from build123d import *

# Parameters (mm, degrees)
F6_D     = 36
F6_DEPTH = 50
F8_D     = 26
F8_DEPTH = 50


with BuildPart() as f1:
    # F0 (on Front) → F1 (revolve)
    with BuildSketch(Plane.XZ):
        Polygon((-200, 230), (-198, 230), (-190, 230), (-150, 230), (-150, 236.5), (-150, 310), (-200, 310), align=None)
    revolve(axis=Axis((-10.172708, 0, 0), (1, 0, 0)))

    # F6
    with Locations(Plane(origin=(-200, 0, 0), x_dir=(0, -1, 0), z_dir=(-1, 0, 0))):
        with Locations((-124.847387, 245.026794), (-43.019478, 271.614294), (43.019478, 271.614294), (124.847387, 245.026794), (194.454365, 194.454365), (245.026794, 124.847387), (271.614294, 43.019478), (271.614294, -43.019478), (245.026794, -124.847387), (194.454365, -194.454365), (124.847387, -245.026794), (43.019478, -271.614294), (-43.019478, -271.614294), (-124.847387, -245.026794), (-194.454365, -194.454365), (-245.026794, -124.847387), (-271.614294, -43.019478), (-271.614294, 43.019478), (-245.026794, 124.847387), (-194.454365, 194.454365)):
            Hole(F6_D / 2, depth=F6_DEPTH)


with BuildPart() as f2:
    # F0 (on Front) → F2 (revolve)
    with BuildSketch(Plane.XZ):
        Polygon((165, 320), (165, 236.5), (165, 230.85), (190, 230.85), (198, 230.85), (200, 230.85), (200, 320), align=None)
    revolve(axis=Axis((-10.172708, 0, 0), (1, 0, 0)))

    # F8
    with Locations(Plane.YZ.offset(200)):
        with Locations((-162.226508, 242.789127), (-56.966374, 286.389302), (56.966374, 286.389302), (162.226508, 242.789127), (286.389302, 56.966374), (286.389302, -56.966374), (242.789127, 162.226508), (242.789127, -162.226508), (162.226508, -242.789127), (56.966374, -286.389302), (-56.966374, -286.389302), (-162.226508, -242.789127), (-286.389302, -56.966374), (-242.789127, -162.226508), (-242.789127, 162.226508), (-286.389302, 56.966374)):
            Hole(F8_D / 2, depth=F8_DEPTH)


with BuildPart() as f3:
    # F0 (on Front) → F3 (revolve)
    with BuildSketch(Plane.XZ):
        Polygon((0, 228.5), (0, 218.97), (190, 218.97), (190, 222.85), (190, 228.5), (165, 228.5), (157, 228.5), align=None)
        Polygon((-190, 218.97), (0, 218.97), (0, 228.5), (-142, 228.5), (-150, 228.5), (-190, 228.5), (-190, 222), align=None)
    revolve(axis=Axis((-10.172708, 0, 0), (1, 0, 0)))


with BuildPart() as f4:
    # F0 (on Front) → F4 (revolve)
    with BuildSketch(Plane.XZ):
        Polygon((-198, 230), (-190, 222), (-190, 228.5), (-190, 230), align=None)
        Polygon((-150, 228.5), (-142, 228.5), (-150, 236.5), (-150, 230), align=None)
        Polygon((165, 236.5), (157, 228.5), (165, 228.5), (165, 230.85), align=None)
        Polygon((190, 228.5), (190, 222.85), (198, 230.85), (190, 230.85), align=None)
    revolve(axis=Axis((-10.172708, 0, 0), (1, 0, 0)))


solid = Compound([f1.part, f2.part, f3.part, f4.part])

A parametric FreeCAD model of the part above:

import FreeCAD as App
import Part
import Sketcher
Q = App.Units.Quantity

doc = App.newDocument("Part")
params = doc.addObject("Spreadsheet::Sheet", "Params")
for row, (alias, value) in enumerate([
    ("sketch1_width", "50 mm"),
    ("sketch1_height", "80 mm"),
    ("revolution_angle", "360 deg"),
    ("sketch2_diameter", "36 mm"),
    ("hole_diameter", "36 mm"),
    ("hole_depth", "50 mm"),
    ("sketch3_width", "35 mm"),
    ("sketch3_height", "89.15 mm"),
    ("revolution2_angle", "360 deg"),
    ("sketch4_diameter", "26 mm"),
    ("hole2_diameter", "26 mm"),
    ("hole2_depth", "50 mm"),
    ("sketch5_width", "380 mm"),
    ("sketch5_height", "9.53 mm"),
    ("revolution3_angle", "360 deg"),
    ("sketch6_width", "8 mm"),
    ("revolution4_angle", "360 deg"),
], start=1):
    params.set(f"A{row}", alias)
    params.set(f"B{row}", "=" + value)
    params.setAlias(f"B{row}", alias)

body = doc.addObject("PartDesign::Body", "Body")

# Sketch on XZ plane
sketch1 = body.newObject("Sketcher::SketchObject", "Sketch")
sketch1.AttachmentSupport = (doc.getObject("XZ_Plane"), [""])
sketch1.MapMode = "FlatFace"
sketch1.addGeometry(Part.LineSegment(App.Vector(-200, 230, 0), App.Vector(-150, 230, 0)), False)
sketch1.addGeometry(Part.LineSegment(App.Vector(-150, 230, 0), App.Vector(-150, 310, 0)), False)
sketch1.addGeometry(Part.LineSegment(App.Vector(-150, 310, 0), App.Vector(-200, 310, 0)), False)
sketch1.addGeometry(Part.LineSegment(App.Vector(-200, 310, 0), App.Vector(-200, 230, 0)), False)
sketch1.addConstraint(Sketcher.Constraint("Coincident", 0, 2, 1, 1))
sketch1.addConstraint(Sketcher.Constraint("Coincident", 1, 2, 2, 1))
sketch1.addConstraint(Sketcher.Constraint("Coincident", 2, 2, 3, 1))
sketch1.addConstraint(Sketcher.Constraint("Coincident", 3, 2, 0, 1))
sketch1.addConstraint(Sketcher.Constraint("Horizontal", 0))
sketch1.addConstraint(Sketcher.Constraint("Vertical", 1))
sketch1.addConstraint(Sketcher.Constraint("Horizontal", 2))
sketch1.addConstraint(Sketcher.Constraint("Vertical", 3))
sketch1.addConstraint(Sketcher.Constraint("DistanceX", 0, 1, 0, 2, Q("50 mm")))
sketch1.addConstraint(Sketcher.Constraint("DistanceY", 1, 1, 1, 2, Q("80 mm")))
sketch1.addConstraint(Sketcher.Constraint("DistanceX", 0, 2, -1, 1, Q("150 mm")))
sketch1.addConstraint(Sketcher.Constraint("DistanceY", -1, 1, 0, 2, Q("230 mm")))
sketch1.setExpression("Constraints[8]", "Params.sketch1_width")
sketch1.setExpression("Constraints[9]", "Params.sketch1_height")
revolution = body.newObject("PartDesign::Revolution", "Revolution")
revolution.Profile = sketch1
revolution.ReferenceAxis = (sketch1, ["H_Axis"])
revolution.setExpression("Angle", "Params.revolution_angle")

# Sketch on YZ plane
sketch2 = body.newObject("Sketcher::SketchObject", "Sketch001")
sketch2.AttachmentSupport = (doc.getObject("YZ_Plane"), [""])
sketch2.MapMode = "FlatFace"
sketch2.AttachmentOffset = App.Placement(App.Vector(0, 0, -200), App.Rotation())
sketch2.addGeometry(Part.Circle(App.Vector(124.847387, 245.026794, 0), App.Vector(0, 0, 1), 18), False)
sketch2.addGeometry(Part.Circle(App.Vector(43.019478, 271.614294, 0), App.Vector(0, 0, 1), 18), False)
sketch2.addGeometry(Part.Circle(App.Vector(-43.019478, 271.614294, 0), App.Vector(0, 0, 1), 18), False)
sketch2.addGeometry(Part.Circle(App.Vector(-124.847387, 245.026794, 0), App.Vector(0, 0, 1), 18), False)
sketch2.addGeometry(Part.Circle(App.Vector(-194.454365, 194.454365, 0), App.Vector(0, 0, 1), 18), False)
sketch2.addGeometry(Part.Circle(App.Vector(-245.026794, 124.847387, 0), App.Vector(0, 0, 1), 18), False)
sketch2.addGeometry(Part.Circle(App.Vector(-271.614294, 43.019478, 0), App.Vector(0, 0, 1), 18), False)
sketch2.addGeometry(Part.Circle(App.Vector(-271.614294, -43.019478, 0), App.Vector(0, 0, 1), 18), False)
sketch2.addGeometry(Part.Circle(App.Vector(-245.026794, -124.847387, 0), App.Vector(0, 0, 1), 18), False)
sketch2.addGeometry(Part.Circle(App.Vector(-194.454365, -194.454365, 0), App.Vector(0, 0, 1), 18), False)
sketch2.addGeometry(Part.Circle(App.Vector(-124.847387, -245.026794, 0), App.Vector(0, 0, 1), 18), False)
sketch2.addGeometry(Part.Circle(App.Vector(-43.019478, -271.614294, 0), App.Vector(0, 0, 1), 18), False)
sketch2.addGeometry(Part.Circle(App.Vector(43.019478, -271.614294, 0), App.Vector(0, 0, 1), 18), False)
sketch2.addGeometry(Part.Circle(App.Vector(124.847387, -245.026794, 0), App.Vector(0, 0, 1), 18), False)
sketch2.addGeometry(Part.Circle(App.Vector(194.454365, -194.454365, 0), App.Vector(0, 0, 1), 18), False)
sketch2.addGeometry(Part.Circle(App.Vector(245.026794, -124.847387, 0), App.Vector(0, 0, 1), 18), False)
sketch2.addGeometry(Part.Circle(App.Vector(271.614294, -43.019478, 0), App.Vector(0, 0, 1), 18), False)
sketch2.addGeometry(Part.Circle(App.Vector(271.614294, 43.019478, 0), App.Vector(0, 0, 1), 18), False)
sketch2.addGeometry(Part.Circle(App.Vector(245.026794, 124.847387, 0), App.Vector(0, 0, 1), 18), False)
sketch2.addGeometry(Part.Circle(App.Vector(194.454365, 194.454365, 0), App.Vector(0, 0, 1), 18), False)
sketch2.addConstraint(Sketcher.Constraint("Equal", 0, 1))
sketch2.addConstraint(Sketcher.Constraint("Equal", 1, 2))
sketch2.addConstraint(Sketcher.Constraint("Equal", 2, 3))
sketch2.addConstraint(Sketcher.Constraint("Equal", 3, 4))
sketch2.addConstraint(Sketcher.Constraint("Equal", 4, 5))
sketch2.addConstraint(Sketcher.Constraint("Equal", 5, 6))
sketch2.addConstraint(Sketcher.Constraint("Equal", 6, 7))
sketch2.addConstraint(Sketcher.Constraint("Equal", 7, 8))
sketch2.addConstraint(Sketcher.Constraint("Equal", 8, 9))
sketch2.addConstraint(Sketcher.Constraint("Equal", 9, 10))
sketch2.addConstraint(Sketcher.Constraint("Equal", 10, 11))
sketch2.addConstraint(Sketcher.Constraint("Equal", 11, 12))
sketch2.addConstraint(Sketcher.Constraint("Equal", 12, 13))
sketch2.addConstraint(Sketcher.Constraint("Equal", 13, 14))
sketch2.addConstraint(Sketcher.Constraint("Equal", 14, 15))
sketch2.addConstraint(Sketcher.Constraint("Equal", 15, 16))
sketch2.addConstraint(Sketcher.Constraint("Equal", 16, 17))
sketch2.addConstraint(Sketcher.Constraint("Equal", 17, 18))
sketch2.addConstraint(Sketcher.Constraint("Equal", 18, 19))
sketch2.addConstraint(Sketcher.Constraint("Symmetric", 0, 3, 10, 3, -1, 1))
sketch2.addConstraint(Sketcher.Constraint("Symmetric", 1, 3, 11, 3, -1, 1))
sketch2.addConstraint(Sketcher.Constraint("Symmetric", 2, 3, 12, 3, -1, 1))
sketch2.addConstraint(Sketcher.Constraint("Symmetric", 3, 3, 13, 3, -1, 1))
sketch2.addConstraint(Sketcher.Constraint("Symmetric", 4, 3, 14, 3, -1, 1))
sketch2.addConstraint(Sketcher.Constraint("Symmetric", 5, 3, 15, 3, -1, 1))
sketch2.addConstraint(Sketcher.Constraint("Symmetric", 6, 3, 16, 3, -1, 1))
sketch2.addConstraint(Sketcher.Constraint("Symmetric", 7, 3, 17, 3, -1, 1))
sketch2.addConstraint(Sketcher.Constraint("Symmetric", 8, 3, 18, 3, -1, 1))
sketch2.addConstraint(Sketcher.Constraint("Symmetric", 9, 3, 19, 3, -1, 1))
sketch2.addConstraint(Sketcher.Constraint("Symmetric", 1, 3, 2, 3, -2))
sketch2.addConstraint(Sketcher.Constraint("Symmetric", 0, 3, 3, 3, -2))
sketch2.addConstraint(Sketcher.Constraint("Symmetric", 9, 3, 14, 3, -2))
sketch2.addConstraint(Sketcher.Constraint("Symmetric", 8, 3, 15, 3, -2))
sketch2.addConstraint(Sketcher.Constraint("Symmetric", 7, 3, 16, 3, -2))
sketch2.addConstraint(Sketcher.Constraint("Diameter", 0, Q("36 mm")))
sketch2.addConstraint(Sketcher.Constraint("DistanceY", 0, 3, 1, 3, Q("26.5875 mm")))
sketch2.addConstraint(Sketcher.Constraint("DistanceX", 6, 3, 5, 3, Q("26.5875 mm")))
sketch2.addConstraint(Sketcher.Constraint("DistanceX", 1, 3, 0, 3, Q("81.827909 mm")))
sketch2.addConstraint(Sketcher.Constraint("DistanceX", 4, 3, 3, 3, Q("69.606978 mm")))
sketch2.addConstraint(Sketcher.Constraint("DistanceY", 4, 3, 3, 3, Q("50.572429 mm")))
sketch2.addConstraint(Sketcher.Constraint("DistanceX", 4, 3, 0, 3, Q("319.301752 mm")))
sketch2.addConstraint(Sketcher.Constraint("DistanceX", 5, 3, 4, 3, Q("50.572429 mm")))
sketch2.addConstraint(Sketcher.Constraint("DistanceY", 5, 3, 4, 3, Q("69.606978 mm")))
sketch2.addConstraint(Sketcher.Constraint("DistanceY", 6, 3, 5, 3, Q("81.827909 mm")))
sketch2.addConstraint(Sketcher.Constraint("DistanceY", 7, 3, 3, 3, Q("288.046272 mm")))
sketch2.setExpression("Constraints[34]", "Params.sketch2_diameter")
doc.recompute()
hole = body.newObject("PartDesign::Hole", "Hole")
hole.Profile = sketch2
hole.ThreadType = "None"
hole.setExpression("Diameter", "Params.hole_diameter")
hole.DepthType = "Dimension"
hole.setExpression("Depth", "Params.hole_depth")
hole.DrillPoint = "Flat"
hole.Reversed = True
body2 = doc.addObject("PartDesign::Body", "Body001")

# Sketch on XZ plane
sketch3 = body2.newObject("Sketcher::SketchObject", "Sketch002")
sketch3.AttachmentSupport = (doc.getObject("XZ_Plane001"), [""])
sketch3.MapMode = "FlatFace"
sketch3.addGeometry(Part.LineSegment(App.Vector(165, 320, 0), App.Vector(165, 230.85, 0)), False)
sketch3.addGeometry(Part.LineSegment(App.Vector(165, 230.85, 0), App.Vector(200, 230.85, 0)), False)
sketch3.addGeometry(Part.LineSegment(App.Vector(200, 230.85, 0), App.Vector(200, 320, 0)), False)
sketch3.addGeometry(Part.LineSegment(App.Vector(200, 320, 0), App.Vector(165, 320, 0)), False)
sketch3.addConstraint(Sketcher.Constraint("Coincident", 0, 2, 1, 1))
sketch3.addConstraint(Sketcher.Constraint("Coincident", 1, 2, 2, 1))
sketch3.addConstraint(Sketcher.Constraint("Coincident", 2, 2, 3, 1))
sketch3.addConstraint(Sketcher.Constraint("Coincident", 3, 2, 0, 1))
sketch3.addConstraint(Sketcher.Constraint("Vertical", 0))
sketch3.addConstraint(Sketcher.Constraint("Horizontal", 1))
sketch3.addConstraint(Sketcher.Constraint("Vertical", 2))
sketch3.addConstraint(Sketcher.Constraint("Horizontal", 3))
sketch3.addConstraint(Sketcher.Constraint("DistanceX", 1, 1, 1, 2, Q("35 mm")))
sketch3.addConstraint(Sketcher.Constraint("DistanceX", -1, 1, 0, 2, Q("165 mm")))
sketch3.addConstraint(Sketcher.Constraint("DistanceY", -1, 1, 2, 2, Q("320 mm")))
sketch3.addConstraint(Sketcher.Constraint("DistanceY", 0, 2, 0, 1, Q("89.15 mm")))
sketch3.setExpression("Constraints[8]", "Params.sketch3_width")
sketch3.setExpression("Constraints[11]", "Params.sketch3_height")
revolution2 = body2.newObject("PartDesign::Revolution", "Revolution001")
revolution2.Profile = sketch3
revolution2.ReferenceAxis = (sketch3, ["H_Axis"])
revolution2.setExpression("Angle", "Params.revolution2_angle")

# Sketch on YZ plane
sketch4 = body2.newObject("Sketcher::SketchObject", "Sketch003")
sketch4.AttachmentSupport = (doc.getObject("YZ_Plane001"), [""])
sketch4.MapMode = "FlatFace"
sketch4.AttachmentOffset = App.Placement(App.Vector(0, 0, 200), App.Rotation())
sketch4.addGeometry(Part.Circle(App.Vector(-162.226508, 242.789127, 0), App.Vector(0, 0, 1), 13), False)
sketch4.addGeometry(Part.Circle(App.Vector(-56.966374, 286.389302, 0), App.Vector(0, 0, 1), 13), False)
sketch4.addGeometry(Part.Circle(App.Vector(56.966374, 286.389302, 0), App.Vector(0, 0, 1), 13), False)
sketch4.addGeometry(Part.Circle(App.Vector(162.226508, 242.789127, 0), App.Vector(0, 0, 1), 13), False)
sketch4.addGeometry(Part.Circle(App.Vector(286.389302, 56.966374, 0), App.Vector(0, 0, 1), 13), False)
sketch4.addGeometry(Part.Circle(App.Vector(286.389302, -56.966374, 0), App.Vector(0, 0, 1), 13), False)
sketch4.addGeometry(Part.Circle(App.Vector(242.789127, 162.226508, 0), App.Vector(0, 0, 1), 13), False)
sketch4.addGeometry(Part.Circle(App.Vector(242.789127, -162.226508, 0), App.Vector(0, 0, 1), 13), False)
sketch4.addGeometry(Part.Circle(App.Vector(162.226508, -242.789127, 0), App.Vector(0, 0, 1), 13), False)
sketch4.addGeometry(Part.Circle(App.Vector(56.966374, -286.389302, 0), App.Vector(0, 0, 1), 13), False)
sketch4.addGeometry(Part.Circle(App.Vector(-56.966374, -286.389302, 0), App.Vector(0, 0, 1), 13), False)
sketch4.addGeometry(Part.Circle(App.Vector(-162.226508, -242.789127, 0), App.Vector(0, 0, 1), 13), False)
sketch4.addGeometry(Part.Circle(App.Vector(-286.389302, -56.966374, 0), App.Vector(0, 0, 1), 13), False)
sketch4.addGeometry(Part.Circle(App.Vector(-242.789127, -162.226508, 0), App.Vector(0, 0, 1), 13), False)
sketch4.addGeometry(Part.Circle(App.Vector(-242.789127, 162.226508, 0), App.Vector(0, 0, 1), 13), False)
sketch4.addGeometry(Part.Circle(App.Vector(-286.389302, 56.966374, 0), App.Vector(0, 0, 1), 13), False)
sketch4.addConstraint(Sketcher.Constraint("Equal", 0, 1))
sketch4.addConstraint(Sketcher.Constraint("Equal", 1, 2))
sketch4.addConstraint(Sketcher.Constraint("Equal", 2, 3))
sketch4.addConstraint(Sketcher.Constraint("Equal", 3, 4))
sketch4.addConstraint(Sketcher.Constraint("Equal", 4, 5))
sketch4.addConstraint(Sketcher.Constraint("Equal", 5, 6))
sketch4.addConstraint(Sketcher.Constraint("Equal", 6, 7))
sketch4.addConstraint(Sketcher.Constraint("Equal", 7, 8))
sketch4.addConstraint(Sketcher.Constraint("Equal", 8, 9))
sketch4.addConstraint(Sketcher.Constraint("Equal", 9, 10))
sketch4.addConstraint(Sketcher.Constraint("Equal", 10, 11))
sketch4.addConstraint(Sketcher.Constraint("Equal", 11, 12))
sketch4.addConstraint(Sketcher.Constraint("Equal", 12, 13))
sketch4.addConstraint(Sketcher.Constraint("Equal", 13, 14))
sketch4.addConstraint(Sketcher.Constraint("Equal", 14, 15))
sketch4.addConstraint(Sketcher.Constraint("Symmetric", 0, 3, 8, 3, -1, 1))
sketch4.addConstraint(Sketcher.Constraint("Symmetric", 1, 3, 9, 3, -1, 1))
sketch4.addConstraint(Sketcher.Constraint("Symmetric", 2, 3, 10, 3, -1, 1))
sketch4.addConstraint(Sketcher.Constraint("Symmetric", 3, 3, 11, 3, -1, 1))
sketch4.addConstraint(Sketcher.Constraint("Symmetric", 4, 3, 12, 3, -1, 1))
sketch4.addConstraint(Sketcher.Constraint("Symmetric", 6, 3, 13, 3, -1, 1))
sketch4.addConstraint(Sketcher.Constraint("Symmetric", 7, 3, 14, 3, -1, 1))
sketch4.addConstraint(Sketcher.Constraint("Symmetric", 5, 3, 15, 3, -1, 1))
sketch4.addConstraint(Sketcher.Constraint("Symmetric", 1, 3, 2, 3, -2))
sketch4.addConstraint(Sketcher.Constraint("Symmetric", 0, 3, 3, 3, -2))
sketch4.addConstraint(Sketcher.Constraint("Symmetric", 5, 3, 12, 3, -2))
sketch4.addConstraint(Sketcher.Constraint("Symmetric", 7, 3, 13, 3, -2))
sketch4.addConstraint(Sketcher.Constraint("Diameter", 0, Q("26 mm")))
sketch4.addConstraint(Sketcher.Constraint("DistanceY", -1, 1, 1, 3, Q("286.389302 mm")))
sketch4.addConstraint(Sketcher.Constraint("DistanceX", -1, 1, 4, 3, Q("286.389302 mm")))
sketch4.addConstraint(Sketcher.Constraint("DistanceY", 5, 3, 3, 3, Q("299.755501 mm")))
sketch4.addConstraint(Sketcher.Constraint("DistanceX", 1, 3, 6, 3, Q("299.755501 mm")))
sketch4.addConstraint(Sketcher.Constraint("DistanceX", 0, 3, -1, 1, Q("162.226508 mm")))
sketch4.addConstraint(Sketcher.Constraint("DistanceY", -1, 1, 6, 3, Q("162.226508 mm")))
sketch4.addConstraint(Sketcher.Constraint("DistanceX", 1, 3, 2, 3, Q("113.932748 mm")))
sketch4.addConstraint(Sketcher.Constraint("DistanceY", 5, 3, 4, 3, Q("113.932748 mm")))
sketch4.setExpression("Constraints[27]", "Params.sketch4_diameter")
doc.recompute()
hole2 = body2.newObject("PartDesign::Hole", "Hole001")
hole2.Profile = sketch4
hole2.ThreadType = "None"
hole2.setExpression("Diameter", "Params.hole2_diameter")
hole2.DepthType = "Dimension"
hole2.setExpression("Depth", "Params.hole2_depth")
hole2.DrillPoint = "Flat"
body3 = doc.addObject("PartDesign::Body", "Body002")

# Sketch on XZ plane
sketch5 = body3.newObject("Sketcher::SketchObject", "Sketch004")
sketch5.AttachmentSupport = (doc.getObject("XZ_Plane002"), [""])
sketch5.MapMode = "FlatFace"
sketch5.addGeometry(Part.LineSegment(App.Vector(190, 218.97, 0), App.Vector(190, 228.5, 0)), False)
sketch5.addGeometry(Part.LineSegment(App.Vector(190, 228.5, 0), App.Vector(-190, 228.5, 0)), False)
sketch5.addGeometry(Part.LineSegment(App.Vector(-190, 228.5, 0), App.Vector(-190, 218.97, 0)), False)
sketch5.addGeometry(Part.LineSegment(App.Vector(-190, 218.97, 0), App.Vector(190, 218.97, 0)), False)
sketch5.addConstraint(Sketcher.Constraint("Coincident", 0, 2, 1, 1))
sketch5.addConstraint(Sketcher.Constraint("Coincident", 1, 2, 2, 1))
sketch5.addConstraint(Sketcher.Constraint("Coincident", 2, 2, 3, 1))
sketch5.addConstraint(Sketcher.Constraint("Coincident", 3, 2, 0, 1))
sketch5.addConstraint(Sketcher.Constraint("Vertical", 0))
sketch5.addConstraint(Sketcher.Constraint("Horizontal", 1))
sketch5.addConstraint(Sketcher.Constraint("Vertical", 2))
sketch5.addConstraint(Sketcher.Constraint("Horizontal", 3))
sketch5.addConstraint(Sketcher.Constraint("DistanceX", 1, 2, 1, 1, Q("380 mm")))
sketch5.addConstraint(Sketcher.Constraint("DistanceX", -1, 1, 0, 2, Q("190 mm")))
sketch5.addConstraint(Sketcher.Constraint("DistanceY", 0, 1, 0, 2, Q("9.53 mm")))
sketch5.addConstraint(Sketcher.Constraint("DistanceY", -1, 1, 0, 2, Q("228.5 mm")))
sketch5.setExpression("Constraints[8]", "Params.sketch5_width")
sketch5.setExpression("Constraints[10]", "Params.sketch5_height")
revolution3 = body3.newObject("PartDesign::Revolution", "Revolution002")
revolution3.Profile = sketch5
revolution3.ReferenceAxis = (sketch5, ["H_Axis"])
revolution3.setExpression("Angle", "Params.revolution3_angle")
body4 = doc.addObject("PartDesign::Body", "Body003")
body4.AllowCompound = True

# Sketch on XZ plane
sketch6 = body4.newObject("Sketcher::SketchObject", "Sketch005")
sketch6.AttachmentSupport = (doc.getObject("XZ_Plane003"), [""])
sketch6.MapMode = "FlatFace"
sketch6.addGeometry(Part.LineSegment(App.Vector(-198, 230, 0), App.Vector(-190, 222, 0)), False)
sketch6.addGeometry(Part.LineSegment(App.Vector(-190, 222, 0), App.Vector(-190, 230, 0)), False)
sketch6.addGeometry(Part.LineSegment(App.Vector(-190, 230, 0), App.Vector(-198, 230, 0)), False)
sketch6.addGeometry(Part.LineSegment(App.Vector(-150, 228.5, 0), App.Vector(-142, 228.5, 0)), False)
sketch6.addGeometry(Part.LineSegment(App.Vector(-142, 228.5, 0), App.Vector(-150, 236.5, 0)), False)
sketch6.addGeometry(Part.LineSegment(App.Vector(-150, 236.5, 0), App.Vector(-150, 228.5, 0)), False)
sketch6.addGeometry(Part.LineSegment(App.Vector(165, 236.5, 0), App.Vector(157, 228.5, 0)), False)
sketch6.addGeometry(Part.LineSegment(App.Vector(157, 228.5, 0), App.Vector(165, 228.5, 0)), False)
sketch6.addGeometry(Part.LineSegment(App.Vector(165, 228.5, 0), App.Vector(165, 236.5, 0)), False)
sketch6.addGeometry(Part.LineSegment(App.Vector(190, 222.85, 0), App.Vector(198, 230.85, 0)), False)
sketch6.addGeometry(Part.LineSegment(App.Vector(198, 230.85, 0), App.Vector(190, 230.85, 0)), False)
sketch6.addGeometry(Part.LineSegment(App.Vector(190, 230.85, 0), App.Vector(190, 222.85, 0)), False)
sketch6.addConstraint(Sketcher.Constraint("Coincident", 0, 2, 1, 1))
sketch6.addConstraint(Sketcher.Constraint("Coincident", 1, 2, 2, 1))
sketch6.addConstraint(Sketcher.Constraint("Coincident", 2, 2, 0, 1))
sketch6.addConstraint(Sketcher.Constraint("Coincident", 3, 2, 4, 1))
sketch6.addConstraint(Sketcher.Constraint("Coincident", 4, 2, 5, 1))
sketch6.addConstraint(Sketcher.Constraint("Coincident", 5, 2, 3, 1))
sketch6.addConstraint(Sketcher.Constraint("Coincident", 6, 2, 7, 1))
sketch6.addConstraint(Sketcher.Constraint("Coincident", 7, 2, 8, 1))
sketch6.addConstraint(Sketcher.Constraint("Coincident", 8, 2, 6, 1))
sketch6.addConstraint(Sketcher.Constraint("Coincident", 9, 2, 10, 1))
sketch6.addConstraint(Sketcher.Constraint("Coincident", 10, 2, 11, 1))
sketch6.addConstraint(Sketcher.Constraint("Coincident", 11, 2, 9, 1))
sketch6.addConstraint(Sketcher.Constraint("Vertical", 1))
sketch6.addConstraint(Sketcher.Constraint("Horizontal", 2))
sketch6.addConstraint(Sketcher.Constraint("Horizontal", 3))
sketch6.addConstraint(Sketcher.Constraint("Vertical", 5))
sketch6.addConstraint(Sketcher.Constraint("Horizontal", 7))
sketch6.addConstraint(Sketcher.Constraint("Vertical", 8))
sketch6.addConstraint(Sketcher.Constraint("Horizontal", 10))
sketch6.addConstraint(Sketcher.Constraint("Vertical", 11))
sketch6.addConstraint(Sketcher.Constraint("Parallel", 0, 4))
sketch6.addConstraint(Sketcher.Constraint("Perpendicular", 4, 6))
sketch6.addConstraint(Sketcher.Constraint("Parallel", 6, 9))
sketch6.addConstraint(Sketcher.Constraint("Horizontal", 5, 2, 6, 2))
sketch6.addConstraint(Sketcher.Constraint("Horizontal", 4, 2, 8, 2))
sketch6.addConstraint(Sketcher.Constraint("Equal", 2, 3))
sketch6.addConstraint(Sketcher.Constraint("Equal", 3, 7))
sketch6.addConstraint(Sketcher.Constraint("Equal", 7, 10))
sketch6.addConstraint(Sketcher.Constraint("DistanceX", 2, 2, 2, 1, Q("8 mm")))
sketch6.addConstraint(Sketcher.Constraint("DistanceX", 0, 2, -1, 1, Q("190 mm")))
sketch6.addConstraint(Sketcher.Constraint("DistanceY", -1, 1, 0, 2, Q("222 mm")))
sketch6.addConstraint(Sketcher.Constraint("DistanceX", 3, 2, -1, 1, Q("142 mm")))
sketch6.addConstraint(Sketcher.Constraint("DistanceX", -1, 1, 6, 2, Q("157 mm")))
sketch6.addConstraint(Sketcher.Constraint("DistanceX", -1, 1, 9, 2, Q("198 mm")))
sketch6.addConstraint(Sketcher.Constraint("DistanceY", -1, 1, 3, 2, Q("228.5 mm")))
sketch6.addConstraint(Sketcher.Constraint("DistanceY", -1, 1, 9, 2, Q("230.85 mm")))
sketch6.setExpression("Constraints[28]", "Params.sketch6_width")
revolution4 = body4.newObject("PartDesign::Revolution", "Revolution003")
revolution4.Profile = sketch6
revolution4.ReferenceAxis = (sketch6, ["H_Axis"])
revolution4.setExpression("Angle", "Params.revolution4_angle")

doc.recompute()
